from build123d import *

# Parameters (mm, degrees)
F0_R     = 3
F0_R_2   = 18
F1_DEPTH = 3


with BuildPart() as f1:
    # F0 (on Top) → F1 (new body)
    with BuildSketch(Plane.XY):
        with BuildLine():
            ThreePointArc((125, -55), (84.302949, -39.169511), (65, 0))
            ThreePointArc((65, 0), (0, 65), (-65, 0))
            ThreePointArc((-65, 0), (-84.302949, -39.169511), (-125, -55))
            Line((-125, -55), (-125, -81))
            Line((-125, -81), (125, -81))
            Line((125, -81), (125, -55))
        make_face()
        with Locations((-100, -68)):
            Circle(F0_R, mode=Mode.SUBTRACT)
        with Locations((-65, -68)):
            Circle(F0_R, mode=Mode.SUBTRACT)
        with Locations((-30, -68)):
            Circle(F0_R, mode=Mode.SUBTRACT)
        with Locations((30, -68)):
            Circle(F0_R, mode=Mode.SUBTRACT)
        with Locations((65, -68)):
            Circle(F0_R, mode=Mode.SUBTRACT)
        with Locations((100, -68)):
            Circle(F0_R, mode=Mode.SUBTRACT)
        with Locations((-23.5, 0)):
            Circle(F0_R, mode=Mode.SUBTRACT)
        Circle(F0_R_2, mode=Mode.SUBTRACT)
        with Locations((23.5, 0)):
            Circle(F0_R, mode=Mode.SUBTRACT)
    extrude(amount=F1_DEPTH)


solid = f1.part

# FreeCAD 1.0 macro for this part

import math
import FreeCAD as App
import Part
import Sketcher

doc = App.newDocument("Part")
body = doc.addObject("PartDesign::Body", "Body")

# Sketch on XY plane
sketch1 = body.newObject("Sketcher::SketchObject", "Sketch")
sketch1.AttachmentSupport = (doc.getObject("XY_Plane"), [""])
sketch1.MapMode = "FlatFace"
sketch1.addGeometry([
    Part.ArcOfCircle(Part.Circle(App.Vector(125, 5.227273, 0), App.Vector(0, 0, 1), 60.227273), math.radians(-175.020894), math.radians(-90)),  # 0
    Part.ArcOfCircle(Part.Circle(App.Vector(0, 0, 0), App.Vector(0, 0, 1), 65), math.radians(0), math.radians(180)),  # 1
    Part.ArcOfCircle(Part.Circle(App.Vector(-125, 5.227273, 0), App.Vector(0, 0, 1), 60.227273), math.radians(-90), math.radians(-4.979106)),  # 2
    Part.LineSegment(App.Vector(-125, -55, 0), App.Vector(-125, -81, 0)),  # 3
    Part.LineSegment(App.Vector(-125, -81, 0), App.Vector(125, -81, 0)),  # 4
    Part.LineSegment(App.Vector(125, -81, 0), App.Vector(125, -55, 0)),  # 5
    Part.Circle(App.Vector(-100, -68, 0), App.Vector(0, 0, 1), 3),  # 6
    Part.Circle(App.Vector(-65, -68, 0), App.Vector(0, 0, 1), 3),  # 7
    Part.Circle(App.Vector(-30, -68, 0), App.Vector(0, 0, 1), 3),  # 8
    Part.Circle(App.Vector(30, -68, 0), App.Vector(0, 0, 1), 3),  # 9
    Part.Circle(App.Vector(65, -68, 0), App.Vector(0, 0, 1), 3),  # 10
    Part.Circle(App.Vector(100, -68, 0), App.Vector(0, 0, 1), 3),  # 11
    Part.Circle(App.Vector(-23.5, 0, 0), App.Vector(0, 0, 1), 3),  # 12
    Part.Circle(App.Vector(0, 0, 0), App.Vector(0, 0, 1), 18),  # 13
    Part.Circle(App.Vector(23.5, 0, 0), App.Vector(0, 0, 1), 3),  # 14
], False)
sketch1.addConstraint([
    Sketcher.Constraint("Coincident", 0, 1, 1, 1),
    Sketcher.Constraint("Coincident", 1, 2, 2, 2),
    Sketcher.Constraint("Coincident", 2, 1, 3, 1),
    Sketcher.Constraint("Coincident", 3, 2, 4, 1),
    Sketcher.Constraint("Coincident", 4, 2, 5, 1),
    Sketcher.Constraint("Coincident", 5, 2, 0, 2),
    Sketcher.Constraint("Vertical", 3),
    Sketcher.Constraint("Horizontal", 4),
    Sketcher.Constraint("Vertical", 5),
    Sketcher.Constraint("Coincident", 1, 3, -1, 1),
    Sketcher.Constraint("Coincident", 13, 3, -1, 1),
    Sketcher.Constraint("Equal", 0, 2),
    Sketcher.Constraint("Equal", 6, 7),
    Sketcher.Constraint("Equal", 7, 8),
    Sketcher.Constraint("Equal", 8, 9),
    Sketcher.Constraint("Equal", 9, 10),
    Sketcher.Constraint("Equal", 10, 11),
    Sketcher.Constraint("Equal", 11, 12),
    Sketcher.Constraint("Equal", 12, 14),
    Sketcher.Constraint("Symmetric", 12, 3, 14, 3, -1, 1),
    Sketcher.Constraint("Symmetric", 0, 3, 2, 3, -2),
    Sketcher.Constraint("Symmetric", 8, 3, 9, 3, -2),
    Sketcher.Constraint("Symmetric", 7, 3, 10, 3, -2),
    Sketcher.Constraint("Symmetric", 6, 3, 11, 3, -2),
    Sketcher.Constraint("PointOnObject", 12, 3, -1),
    Sketcher.Constraint("PointOnObject", 0, 1, -1),
    Sketcher.Constraint("Horizontal", 6, 3, 7, 3),
    Sketcher.Constraint("Horizontal", 7, 3, 8, 3),
    Sketcher.Constraint("Vertical", 10, 3, 0, 1),
    Sketcher.Constraint("Vertical", 0, 3, 4, 2),
    Sketcher.Constraint("Diameter", 6, 6.0),
    Sketcher.Constraint("Diameter", 13, 36.0),
    Sketcher.Constraint("Radius", 1, 65.0),
    Sketcher.Constraint("DistanceX", 4, 1, 4, 2, 250.0),
    Sketcher.Constraint("DistanceY", 3, 2, 3, 1, 26.0),
    Sketcher.Constraint("DistanceX", -1, 1, 0, 3, 125.0),
    Sketcher.Constraint("DistanceX", 6, 3, -1, 1, 100.0),
    Sketcher.Constraint("DistanceY", 6, 3, -1, 1, 68.0),
    Sketcher.Constraint("DistanceX", 8, 3, -1, 1, 30.0),
    Sketcher.Constraint("DistanceY", 2, 1, -1, 1, 55.0),
    Sketcher.Constraint("DistanceX", 12, 3, 14, 3, 47.0),
])
pad1 = body.newObject("PartDesign::Pad", "Pad")
pad1.Profile = sketch1
pad1.Length = 3

doc.recompute()
